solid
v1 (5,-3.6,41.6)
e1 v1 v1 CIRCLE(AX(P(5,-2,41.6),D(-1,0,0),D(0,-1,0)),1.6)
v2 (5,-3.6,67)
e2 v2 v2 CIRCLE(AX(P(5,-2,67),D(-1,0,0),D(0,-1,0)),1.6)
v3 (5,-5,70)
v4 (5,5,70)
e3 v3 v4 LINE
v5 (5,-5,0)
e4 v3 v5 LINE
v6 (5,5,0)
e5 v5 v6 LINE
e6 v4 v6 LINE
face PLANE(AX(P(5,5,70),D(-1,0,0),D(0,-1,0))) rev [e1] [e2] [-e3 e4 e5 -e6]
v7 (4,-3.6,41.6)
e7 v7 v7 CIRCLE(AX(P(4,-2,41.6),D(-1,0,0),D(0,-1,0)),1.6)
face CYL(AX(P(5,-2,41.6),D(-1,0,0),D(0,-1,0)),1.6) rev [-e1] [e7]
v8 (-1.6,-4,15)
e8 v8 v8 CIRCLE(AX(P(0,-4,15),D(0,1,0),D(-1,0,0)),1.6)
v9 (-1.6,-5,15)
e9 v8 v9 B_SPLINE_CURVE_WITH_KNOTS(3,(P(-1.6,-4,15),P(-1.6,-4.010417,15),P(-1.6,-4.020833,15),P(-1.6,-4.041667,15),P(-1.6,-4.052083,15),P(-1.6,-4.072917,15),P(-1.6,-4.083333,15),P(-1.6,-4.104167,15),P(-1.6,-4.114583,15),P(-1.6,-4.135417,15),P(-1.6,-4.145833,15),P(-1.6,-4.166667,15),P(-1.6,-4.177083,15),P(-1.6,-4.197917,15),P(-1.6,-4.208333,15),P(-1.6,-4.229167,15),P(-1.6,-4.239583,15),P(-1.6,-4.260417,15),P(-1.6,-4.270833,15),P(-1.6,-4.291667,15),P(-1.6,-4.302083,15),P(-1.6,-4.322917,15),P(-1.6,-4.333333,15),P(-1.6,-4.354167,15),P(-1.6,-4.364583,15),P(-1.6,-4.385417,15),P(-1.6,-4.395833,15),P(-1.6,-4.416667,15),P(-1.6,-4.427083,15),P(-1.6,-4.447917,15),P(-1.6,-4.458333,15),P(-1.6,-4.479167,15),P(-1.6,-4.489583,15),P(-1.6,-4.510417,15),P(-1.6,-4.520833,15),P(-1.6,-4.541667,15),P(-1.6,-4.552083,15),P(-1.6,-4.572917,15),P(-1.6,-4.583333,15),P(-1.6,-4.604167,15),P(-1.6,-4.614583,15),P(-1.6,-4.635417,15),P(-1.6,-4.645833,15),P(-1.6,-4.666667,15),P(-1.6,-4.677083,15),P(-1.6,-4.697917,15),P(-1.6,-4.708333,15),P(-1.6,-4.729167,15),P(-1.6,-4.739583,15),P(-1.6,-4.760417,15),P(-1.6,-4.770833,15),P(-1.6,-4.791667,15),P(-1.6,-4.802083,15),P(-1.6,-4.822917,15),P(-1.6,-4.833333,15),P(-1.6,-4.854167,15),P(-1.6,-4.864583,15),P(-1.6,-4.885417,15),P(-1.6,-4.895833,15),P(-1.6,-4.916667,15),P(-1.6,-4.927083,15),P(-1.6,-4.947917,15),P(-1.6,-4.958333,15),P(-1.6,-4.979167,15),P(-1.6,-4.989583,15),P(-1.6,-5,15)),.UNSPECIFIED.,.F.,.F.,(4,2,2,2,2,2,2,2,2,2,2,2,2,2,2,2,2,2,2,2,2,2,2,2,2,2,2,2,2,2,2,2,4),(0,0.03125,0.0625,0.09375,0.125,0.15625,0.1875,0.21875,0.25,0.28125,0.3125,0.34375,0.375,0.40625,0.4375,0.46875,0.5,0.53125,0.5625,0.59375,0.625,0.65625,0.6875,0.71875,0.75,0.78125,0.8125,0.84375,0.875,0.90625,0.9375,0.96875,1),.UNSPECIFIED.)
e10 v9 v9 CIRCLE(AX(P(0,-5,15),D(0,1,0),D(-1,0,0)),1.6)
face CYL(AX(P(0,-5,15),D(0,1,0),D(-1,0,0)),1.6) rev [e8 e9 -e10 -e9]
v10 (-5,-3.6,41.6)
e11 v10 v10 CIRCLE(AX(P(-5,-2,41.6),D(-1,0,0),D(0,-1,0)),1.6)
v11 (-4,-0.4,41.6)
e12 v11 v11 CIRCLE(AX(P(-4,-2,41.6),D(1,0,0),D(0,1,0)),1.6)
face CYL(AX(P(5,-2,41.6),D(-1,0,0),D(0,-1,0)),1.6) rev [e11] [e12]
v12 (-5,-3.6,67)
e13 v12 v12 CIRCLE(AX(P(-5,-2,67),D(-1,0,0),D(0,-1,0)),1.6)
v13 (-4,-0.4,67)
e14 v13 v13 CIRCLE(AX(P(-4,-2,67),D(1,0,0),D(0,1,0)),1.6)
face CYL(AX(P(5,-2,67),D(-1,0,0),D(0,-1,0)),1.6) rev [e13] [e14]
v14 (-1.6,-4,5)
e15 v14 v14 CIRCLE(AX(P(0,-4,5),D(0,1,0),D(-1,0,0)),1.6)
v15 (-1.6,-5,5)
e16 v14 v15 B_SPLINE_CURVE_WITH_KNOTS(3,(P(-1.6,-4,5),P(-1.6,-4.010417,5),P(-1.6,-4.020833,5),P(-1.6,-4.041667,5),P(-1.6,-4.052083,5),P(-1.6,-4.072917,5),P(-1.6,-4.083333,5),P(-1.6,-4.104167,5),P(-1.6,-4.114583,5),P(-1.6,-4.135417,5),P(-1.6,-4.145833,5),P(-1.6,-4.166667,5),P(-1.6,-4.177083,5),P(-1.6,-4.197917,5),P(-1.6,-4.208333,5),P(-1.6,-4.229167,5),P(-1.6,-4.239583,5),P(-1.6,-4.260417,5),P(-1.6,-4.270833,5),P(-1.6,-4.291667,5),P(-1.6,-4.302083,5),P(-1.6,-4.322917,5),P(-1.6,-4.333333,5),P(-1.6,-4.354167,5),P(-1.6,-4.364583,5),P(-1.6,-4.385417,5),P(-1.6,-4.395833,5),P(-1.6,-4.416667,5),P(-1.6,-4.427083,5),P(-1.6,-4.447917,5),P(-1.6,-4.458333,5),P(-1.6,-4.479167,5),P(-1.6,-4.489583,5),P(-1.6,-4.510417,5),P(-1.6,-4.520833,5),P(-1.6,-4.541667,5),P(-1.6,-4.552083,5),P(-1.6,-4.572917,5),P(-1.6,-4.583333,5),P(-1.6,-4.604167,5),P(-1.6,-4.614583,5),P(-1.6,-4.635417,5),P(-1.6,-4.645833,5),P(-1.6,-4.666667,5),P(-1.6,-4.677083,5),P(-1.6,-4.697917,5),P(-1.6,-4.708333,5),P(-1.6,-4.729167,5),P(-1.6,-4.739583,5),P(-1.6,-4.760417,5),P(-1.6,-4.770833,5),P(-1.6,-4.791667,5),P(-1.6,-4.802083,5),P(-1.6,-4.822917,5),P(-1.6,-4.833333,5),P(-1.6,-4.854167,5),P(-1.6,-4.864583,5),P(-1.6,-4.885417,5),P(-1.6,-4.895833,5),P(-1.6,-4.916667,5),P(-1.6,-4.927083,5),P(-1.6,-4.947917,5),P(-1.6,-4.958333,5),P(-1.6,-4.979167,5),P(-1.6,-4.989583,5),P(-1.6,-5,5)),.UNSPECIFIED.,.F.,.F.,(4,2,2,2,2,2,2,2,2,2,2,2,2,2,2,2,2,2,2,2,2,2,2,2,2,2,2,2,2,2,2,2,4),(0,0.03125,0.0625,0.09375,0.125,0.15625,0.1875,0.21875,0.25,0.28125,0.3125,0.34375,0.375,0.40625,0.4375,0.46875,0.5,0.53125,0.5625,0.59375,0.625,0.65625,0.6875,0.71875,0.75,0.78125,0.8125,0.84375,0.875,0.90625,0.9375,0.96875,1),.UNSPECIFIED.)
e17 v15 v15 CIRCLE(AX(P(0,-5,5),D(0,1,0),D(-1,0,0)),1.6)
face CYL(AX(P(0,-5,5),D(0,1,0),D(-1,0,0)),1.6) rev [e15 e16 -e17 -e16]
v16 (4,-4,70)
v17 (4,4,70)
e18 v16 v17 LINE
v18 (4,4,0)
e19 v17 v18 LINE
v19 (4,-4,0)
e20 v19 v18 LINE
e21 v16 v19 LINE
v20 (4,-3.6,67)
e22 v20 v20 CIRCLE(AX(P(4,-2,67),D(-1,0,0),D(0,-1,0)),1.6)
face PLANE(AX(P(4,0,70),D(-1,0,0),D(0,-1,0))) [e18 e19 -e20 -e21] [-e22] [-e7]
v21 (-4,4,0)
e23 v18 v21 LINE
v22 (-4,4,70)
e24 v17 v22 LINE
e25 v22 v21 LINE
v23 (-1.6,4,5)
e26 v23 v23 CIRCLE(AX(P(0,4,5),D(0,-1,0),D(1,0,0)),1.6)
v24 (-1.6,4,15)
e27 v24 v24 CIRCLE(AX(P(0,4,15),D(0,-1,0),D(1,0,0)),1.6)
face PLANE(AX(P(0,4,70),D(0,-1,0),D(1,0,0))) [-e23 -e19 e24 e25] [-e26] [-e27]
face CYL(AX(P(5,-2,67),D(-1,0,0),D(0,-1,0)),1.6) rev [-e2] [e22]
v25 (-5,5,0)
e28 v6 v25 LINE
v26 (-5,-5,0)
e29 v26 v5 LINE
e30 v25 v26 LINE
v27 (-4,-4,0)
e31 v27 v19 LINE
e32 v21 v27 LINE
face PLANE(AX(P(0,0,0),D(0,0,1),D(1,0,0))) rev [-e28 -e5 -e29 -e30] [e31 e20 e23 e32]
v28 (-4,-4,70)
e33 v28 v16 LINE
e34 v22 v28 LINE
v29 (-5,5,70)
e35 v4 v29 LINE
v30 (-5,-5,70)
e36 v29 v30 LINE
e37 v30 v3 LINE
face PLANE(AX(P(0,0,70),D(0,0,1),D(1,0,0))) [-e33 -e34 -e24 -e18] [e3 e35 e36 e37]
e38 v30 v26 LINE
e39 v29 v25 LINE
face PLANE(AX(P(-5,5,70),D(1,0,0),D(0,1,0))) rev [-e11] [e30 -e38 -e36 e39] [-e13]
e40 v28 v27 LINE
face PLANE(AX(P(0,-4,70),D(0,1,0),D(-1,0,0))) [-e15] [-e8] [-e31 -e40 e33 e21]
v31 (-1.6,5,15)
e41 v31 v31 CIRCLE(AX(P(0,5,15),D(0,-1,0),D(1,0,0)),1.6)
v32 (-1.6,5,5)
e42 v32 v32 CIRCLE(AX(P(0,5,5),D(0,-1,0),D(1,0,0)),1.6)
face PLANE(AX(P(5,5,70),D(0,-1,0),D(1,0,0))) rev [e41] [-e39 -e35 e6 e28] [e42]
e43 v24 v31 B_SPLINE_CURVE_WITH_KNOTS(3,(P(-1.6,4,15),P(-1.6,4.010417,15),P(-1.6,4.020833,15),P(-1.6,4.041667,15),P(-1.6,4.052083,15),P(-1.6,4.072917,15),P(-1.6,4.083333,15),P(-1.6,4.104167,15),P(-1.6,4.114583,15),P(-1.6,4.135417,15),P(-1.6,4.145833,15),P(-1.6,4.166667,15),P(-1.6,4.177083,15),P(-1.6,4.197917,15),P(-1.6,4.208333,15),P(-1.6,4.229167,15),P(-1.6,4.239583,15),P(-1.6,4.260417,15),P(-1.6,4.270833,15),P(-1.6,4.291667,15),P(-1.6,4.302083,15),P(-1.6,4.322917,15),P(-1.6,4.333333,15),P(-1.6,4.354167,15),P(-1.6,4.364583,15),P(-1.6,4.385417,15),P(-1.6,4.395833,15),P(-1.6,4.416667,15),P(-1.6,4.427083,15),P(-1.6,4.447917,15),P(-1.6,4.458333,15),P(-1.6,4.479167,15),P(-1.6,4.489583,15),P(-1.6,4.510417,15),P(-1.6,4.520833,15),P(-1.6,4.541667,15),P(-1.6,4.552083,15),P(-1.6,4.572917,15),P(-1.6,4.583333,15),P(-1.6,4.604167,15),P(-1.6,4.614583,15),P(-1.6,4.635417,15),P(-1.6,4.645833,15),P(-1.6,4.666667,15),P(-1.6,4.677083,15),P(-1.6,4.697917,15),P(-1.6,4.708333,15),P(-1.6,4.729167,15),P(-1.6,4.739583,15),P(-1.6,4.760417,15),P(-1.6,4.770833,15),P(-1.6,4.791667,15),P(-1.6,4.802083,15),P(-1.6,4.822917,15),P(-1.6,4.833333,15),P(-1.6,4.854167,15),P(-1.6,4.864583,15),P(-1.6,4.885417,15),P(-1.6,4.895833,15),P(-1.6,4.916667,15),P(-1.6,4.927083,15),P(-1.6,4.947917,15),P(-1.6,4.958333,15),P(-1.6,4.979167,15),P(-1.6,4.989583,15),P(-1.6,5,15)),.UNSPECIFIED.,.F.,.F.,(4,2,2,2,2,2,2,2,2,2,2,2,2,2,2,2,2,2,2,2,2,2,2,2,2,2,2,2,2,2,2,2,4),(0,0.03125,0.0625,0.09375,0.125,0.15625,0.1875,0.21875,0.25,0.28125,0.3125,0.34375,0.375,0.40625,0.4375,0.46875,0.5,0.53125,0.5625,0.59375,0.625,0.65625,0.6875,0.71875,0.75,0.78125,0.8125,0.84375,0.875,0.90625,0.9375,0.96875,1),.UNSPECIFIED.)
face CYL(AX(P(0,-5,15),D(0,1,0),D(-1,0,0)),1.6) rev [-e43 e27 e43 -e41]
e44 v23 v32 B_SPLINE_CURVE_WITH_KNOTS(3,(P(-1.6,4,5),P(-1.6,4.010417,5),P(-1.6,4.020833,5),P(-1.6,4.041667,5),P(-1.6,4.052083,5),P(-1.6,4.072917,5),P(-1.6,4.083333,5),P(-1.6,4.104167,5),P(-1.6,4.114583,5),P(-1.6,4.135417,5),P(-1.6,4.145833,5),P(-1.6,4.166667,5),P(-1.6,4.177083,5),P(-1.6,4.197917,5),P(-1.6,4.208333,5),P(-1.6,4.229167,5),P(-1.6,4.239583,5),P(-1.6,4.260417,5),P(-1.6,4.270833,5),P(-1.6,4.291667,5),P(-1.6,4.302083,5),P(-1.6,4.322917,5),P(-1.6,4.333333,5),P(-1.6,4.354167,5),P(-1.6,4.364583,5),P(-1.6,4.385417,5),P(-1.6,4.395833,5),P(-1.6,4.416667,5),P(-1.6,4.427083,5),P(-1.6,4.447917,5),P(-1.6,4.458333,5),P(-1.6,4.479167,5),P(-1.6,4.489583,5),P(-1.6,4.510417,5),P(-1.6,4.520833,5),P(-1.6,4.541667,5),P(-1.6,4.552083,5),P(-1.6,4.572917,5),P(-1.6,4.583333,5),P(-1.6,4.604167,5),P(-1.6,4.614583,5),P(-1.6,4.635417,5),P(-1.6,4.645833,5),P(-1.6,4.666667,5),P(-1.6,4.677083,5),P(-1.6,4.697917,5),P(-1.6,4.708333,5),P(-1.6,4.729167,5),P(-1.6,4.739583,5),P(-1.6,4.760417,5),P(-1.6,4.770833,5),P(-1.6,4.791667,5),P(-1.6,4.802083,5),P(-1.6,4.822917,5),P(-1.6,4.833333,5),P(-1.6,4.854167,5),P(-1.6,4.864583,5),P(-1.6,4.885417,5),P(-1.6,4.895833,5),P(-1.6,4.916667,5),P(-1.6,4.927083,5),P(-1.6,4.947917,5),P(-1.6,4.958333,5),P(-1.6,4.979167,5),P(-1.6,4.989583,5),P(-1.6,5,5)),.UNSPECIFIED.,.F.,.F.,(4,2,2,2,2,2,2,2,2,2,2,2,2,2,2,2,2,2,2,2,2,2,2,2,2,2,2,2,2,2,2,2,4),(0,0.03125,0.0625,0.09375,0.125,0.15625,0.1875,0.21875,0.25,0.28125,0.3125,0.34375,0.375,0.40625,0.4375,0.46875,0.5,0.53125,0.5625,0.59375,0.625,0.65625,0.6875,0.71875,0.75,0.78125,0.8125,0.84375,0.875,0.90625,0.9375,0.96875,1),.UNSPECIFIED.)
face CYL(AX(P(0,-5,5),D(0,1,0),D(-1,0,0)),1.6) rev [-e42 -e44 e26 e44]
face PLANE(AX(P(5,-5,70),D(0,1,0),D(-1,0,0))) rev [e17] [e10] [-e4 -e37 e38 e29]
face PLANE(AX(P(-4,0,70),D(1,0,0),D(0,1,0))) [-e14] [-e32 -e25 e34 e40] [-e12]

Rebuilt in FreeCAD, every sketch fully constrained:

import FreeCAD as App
import Part
import Sketcher

V = App.Vector

doc = App.newDocument("Part")
body = doc.addObject("PartDesign::Body", "Body")

sketch1 = body.newObject("Sketcher::SketchObject", "Sketch")
sketch1.AttachmentSupport = (doc.getObject("XY_Plane"), [""])
sketch1.MapMode = "FlatFace"
sketch1.addGeometry(Part.LineSegment(V(-5, 5, 0), V(-5, -5, 0)), False)
sketch1.addGeometry(Part.LineSegment(V(-5, -5, 0), V(5, -5, 0)), False)
sketch1.addGeometry(Part.LineSegment(V(5, -5, 0), V(5, 5, 0)), False)
sketch1.addGeometry(Part.LineSegment(V(5, 5, 0), V(-5, 5, 0)), False)
sketch1.addGeometry(Part.LineSegment(V(4, -4, 0), V(-4, -4, 0)), False)
sketch1.addGeometry(Part.LineSegment(V(-4, -4, 0), V(-4, 4, 0)), False)
sketch1.addGeometry(Part.LineSegment(V(-4, 4, 0), V(4, 4, 0)), False)
sketch1.addGeometry(Part.LineSegment(V(4, 4, 0), V(4, -4, 0)), False)
sketch1.addConstraint(Sketcher.Constraint("Coincident", 0, 2, 1, 1))
sketch1.addConstraint(Sketcher.Constraint("Coincident", 1, 2, 2, 1))
sketch1.addConstraint(Sketcher.Constraint("Coincident", 2, 2, 3, 1))
sketch1.addConstraint(Sketcher.Constraint("Coincident", 3, 2, 0, 1))
sketch1.addConstraint(Sketcher.Constraint("Coincident", 4, 2, 5, 1))
sketch1.addConstraint(Sketcher.Constraint("Coincident", 5, 2, 6, 1))
sketch1.addConstraint(Sketcher.Constraint("Coincident", 6, 2, 7, 1))
sketch1.addConstraint(Sketcher.Constraint("Coincident", 7, 2, 4, 1))
sketch1.addConstraint(Sketcher.Constraint("Vertical", 0))
sketch1.addConstraint(Sketcher.Constraint("Horizontal", 1))
sketch1.addConstraint(Sketcher.Constraint("Vertical", 2))
sketch1.addConstraint(Sketcher.Constraint("Horizontal", 3))
sketch1.addConstraint(Sketcher.Constraint("Horizontal", 4))
sketch1.addConstraint(Sketcher.Constraint("Vertical", 5))
sketch1.addConstraint(Sketcher.Constraint("Horizontal", 6))
sketch1.addConstraint(Sketcher.Constraint("Vertical", 7))
sketch1.addConstraint(Sketcher.Constraint("Symmetric", 0, 2, 2, 2, -1, 1))
sketch1.addConstraint(Sketcher.Constraint("Symmetric", 4, 2, 6, 2, -1, 1))
sketch1.addConstraint(Sketcher.Constraint("Equal", 3, 0))
sketch1.addConstraint(Sketcher.Constraint("Equal", 6, 5))
sketch1.addConstraint(Sketcher.Constraint("DistanceX", 1, 1, 1, 2, 10.0))
sketch1.addConstraint(Sketcher.Constraint("DistanceX", 4, 2, 4, 1, 8.0))
pad1 = body.newObject("PartDesign::Pad", "Pad")
pad1.Profile = sketch1
pad1.Length = 70

sketch2 = body.newObject("Sketcher::SketchObject", "Sketch001")
sketch2.AttachmentSupport = (doc.getObject("XZ_Plane"), [""])
sketch2.MapMode = "FlatFace"
sketch2.AttachmentOffset = App.Placement(V(0, 0, -5), App.Rotation())
sketch2.addGeometry(Part.Circle(V(0, 5, 0), V(0, 0, 1), 1.6), False)
sketch2.addGeometry(Part.Circle(V(0, 15, 0), V(0, 0, 1), 1.6), False)
sketch2.addConstraint(Sketcher.Constraint("Equal", 0, 1))
sketch2.addConstraint(Sketcher.Constraint("PointOnObject", 0, 3, -2))
sketch2.addConstraint(Sketcher.Constraint("PointOnObject", 1, 3, -2))
sketch2.addConstraint(Sketcher.Constraint("Diameter", 0, 3.2))
sketch2.addConstraint(Sketcher.Constraint("DistanceY", -1, 1, 0, 3, 5.0))
sketch2.addConstraint(Sketcher.Constraint("DistanceY", -1, 1, 1, 3, 15.0))
pocket1 = body.newObject("PartDesign::Pocket", "Pocket")
pocket1.Profile = sketch2
pocket1.Type = "ThroughAll"
pocket1.Midplane = True

sketch3 = body.newObject("Sketcher::SketchObject", "Sketch002")
sketch3.AttachmentSupport = (doc.getObject("YZ_Plane"), [""])
sketch3.MapMode = "FlatFace"
sketch3.AttachmentOffset = App.Placement(V(0, 0, -5), App.Rotation())
sketch3.addGeometry(Part.Circle(V(-2, 67, 0), V(0, 0, 1), 1.6), False)
sketch3.addGeometry(Part.Circle(V(-2, 41.6, 0), V(0, 0, 1), 1.6), False)
sketch3.addConstraint(Sketcher.Constraint("Equal", 0, 1))
sketch3.addConstraint(Sketcher.Constraint("Vertical", 0, 3, 1, 3))
sketch3.addConstraint(Sketcher.Constraint("Diameter", 0, 3.2))
sketch3.addConstraint(Sketcher.Constraint("DistanceX", 0, 3, -1, 1, 2.0))
sketch3.addConstraint(Sketcher.Constraint("DistanceY", -1, 1, 0, 3, 67.0))
sketch3.addConstraint(Sketcher.Constraint("DistanceY", -1, 1, 1, 3, 41.6))
pocket2 = body.newObject("PartDesign::Pocket", "Pocket001")
pocket2.Profile = sketch3
pocket2.Type = "ThroughAll"
pocket2.Reversed = True

doc.recompute()
